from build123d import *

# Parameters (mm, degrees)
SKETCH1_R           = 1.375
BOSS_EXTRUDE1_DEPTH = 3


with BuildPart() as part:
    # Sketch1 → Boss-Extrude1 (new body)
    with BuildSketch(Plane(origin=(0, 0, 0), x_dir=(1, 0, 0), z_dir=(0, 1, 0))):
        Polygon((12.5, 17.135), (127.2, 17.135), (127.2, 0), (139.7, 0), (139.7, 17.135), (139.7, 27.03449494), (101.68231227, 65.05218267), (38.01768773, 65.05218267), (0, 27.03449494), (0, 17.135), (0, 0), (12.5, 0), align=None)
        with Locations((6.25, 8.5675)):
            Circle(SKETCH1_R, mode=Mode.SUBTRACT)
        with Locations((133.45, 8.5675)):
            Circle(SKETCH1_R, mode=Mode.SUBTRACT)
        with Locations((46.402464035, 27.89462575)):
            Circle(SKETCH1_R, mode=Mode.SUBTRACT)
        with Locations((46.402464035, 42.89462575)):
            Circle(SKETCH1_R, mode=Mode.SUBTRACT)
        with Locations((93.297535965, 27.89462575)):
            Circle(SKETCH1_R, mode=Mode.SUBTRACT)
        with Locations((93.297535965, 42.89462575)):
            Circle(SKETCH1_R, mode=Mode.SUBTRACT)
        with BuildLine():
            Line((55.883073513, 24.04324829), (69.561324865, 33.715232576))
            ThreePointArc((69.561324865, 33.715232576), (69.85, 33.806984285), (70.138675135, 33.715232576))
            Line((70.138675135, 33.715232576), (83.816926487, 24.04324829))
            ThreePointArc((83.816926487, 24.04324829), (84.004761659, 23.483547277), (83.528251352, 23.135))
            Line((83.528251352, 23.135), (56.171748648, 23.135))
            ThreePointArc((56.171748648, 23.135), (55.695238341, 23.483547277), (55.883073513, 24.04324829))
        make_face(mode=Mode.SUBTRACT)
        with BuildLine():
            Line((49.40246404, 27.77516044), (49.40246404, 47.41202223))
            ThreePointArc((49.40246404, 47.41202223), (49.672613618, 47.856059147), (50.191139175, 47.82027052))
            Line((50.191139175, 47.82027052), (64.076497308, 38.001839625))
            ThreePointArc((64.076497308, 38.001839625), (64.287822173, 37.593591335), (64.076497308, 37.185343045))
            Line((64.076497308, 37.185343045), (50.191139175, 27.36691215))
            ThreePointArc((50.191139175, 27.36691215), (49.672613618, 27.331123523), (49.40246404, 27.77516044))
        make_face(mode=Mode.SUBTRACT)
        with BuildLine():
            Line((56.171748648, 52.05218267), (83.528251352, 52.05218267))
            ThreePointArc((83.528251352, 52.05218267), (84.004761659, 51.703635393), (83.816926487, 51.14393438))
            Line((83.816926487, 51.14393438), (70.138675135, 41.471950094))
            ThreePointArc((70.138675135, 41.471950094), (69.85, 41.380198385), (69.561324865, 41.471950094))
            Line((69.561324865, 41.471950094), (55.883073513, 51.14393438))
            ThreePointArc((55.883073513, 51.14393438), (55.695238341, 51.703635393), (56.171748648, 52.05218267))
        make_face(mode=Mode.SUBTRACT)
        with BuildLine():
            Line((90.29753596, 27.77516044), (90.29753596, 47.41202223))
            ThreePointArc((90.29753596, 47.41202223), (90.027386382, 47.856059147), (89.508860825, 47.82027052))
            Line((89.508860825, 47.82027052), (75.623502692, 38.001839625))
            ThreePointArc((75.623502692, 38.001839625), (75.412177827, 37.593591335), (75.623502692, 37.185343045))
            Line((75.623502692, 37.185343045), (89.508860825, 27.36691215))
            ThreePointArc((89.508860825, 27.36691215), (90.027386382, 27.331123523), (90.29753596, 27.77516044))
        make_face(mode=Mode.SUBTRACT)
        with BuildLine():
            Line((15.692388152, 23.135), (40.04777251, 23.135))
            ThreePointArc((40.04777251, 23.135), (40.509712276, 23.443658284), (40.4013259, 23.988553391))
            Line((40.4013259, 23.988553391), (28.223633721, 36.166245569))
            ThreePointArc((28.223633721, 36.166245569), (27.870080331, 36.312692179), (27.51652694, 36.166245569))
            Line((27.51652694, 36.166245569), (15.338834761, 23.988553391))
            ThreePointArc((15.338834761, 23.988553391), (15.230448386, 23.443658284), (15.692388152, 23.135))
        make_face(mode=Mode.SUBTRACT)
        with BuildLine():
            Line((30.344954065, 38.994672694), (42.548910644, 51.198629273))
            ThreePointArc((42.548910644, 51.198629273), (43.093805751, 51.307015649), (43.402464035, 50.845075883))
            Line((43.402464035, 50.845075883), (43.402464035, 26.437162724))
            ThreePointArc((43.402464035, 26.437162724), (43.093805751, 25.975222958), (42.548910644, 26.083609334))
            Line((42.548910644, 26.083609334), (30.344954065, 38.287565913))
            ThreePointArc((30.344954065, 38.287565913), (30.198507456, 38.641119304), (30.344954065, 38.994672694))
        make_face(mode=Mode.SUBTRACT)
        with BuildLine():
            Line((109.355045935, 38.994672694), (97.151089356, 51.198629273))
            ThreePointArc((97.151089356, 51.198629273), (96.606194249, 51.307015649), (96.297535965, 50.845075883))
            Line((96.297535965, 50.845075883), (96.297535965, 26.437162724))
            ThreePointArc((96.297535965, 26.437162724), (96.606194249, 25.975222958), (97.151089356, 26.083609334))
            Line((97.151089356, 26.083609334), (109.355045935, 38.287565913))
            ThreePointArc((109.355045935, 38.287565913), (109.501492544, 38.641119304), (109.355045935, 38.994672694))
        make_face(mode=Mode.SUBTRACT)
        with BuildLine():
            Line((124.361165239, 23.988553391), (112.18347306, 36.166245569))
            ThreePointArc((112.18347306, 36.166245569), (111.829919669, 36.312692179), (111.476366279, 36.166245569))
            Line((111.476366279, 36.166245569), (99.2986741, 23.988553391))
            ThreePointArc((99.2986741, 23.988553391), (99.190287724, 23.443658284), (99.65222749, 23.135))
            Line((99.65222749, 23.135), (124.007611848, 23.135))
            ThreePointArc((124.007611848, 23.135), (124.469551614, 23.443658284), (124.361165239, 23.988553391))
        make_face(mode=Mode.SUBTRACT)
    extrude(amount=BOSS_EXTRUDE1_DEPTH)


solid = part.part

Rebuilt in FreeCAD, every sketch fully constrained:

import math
import FreeCAD as App
import Part
import Sketcher

V = App.Vector
Q = App.Units.Quantity

doc = App.newDocument("Part")
body = doc.addObject("PartDesign::Body", "Body")

sketch1 = doc.addObject("Sketcher::SketchObject", "Sketch")
body.addObject(sketch1)
sketch1.AttachmentSupport = (doc.XZ_Plane, [""])
sketch1.MapMode = "FlatFace"
sketch1.addGeometry(Part.LineSegment(V(12.5, -17.135, 0), V(127.2, -17.135, 0)), False)
sketch1.addGeometry(Part.LineSegment(V(127.2, -17.135, 0), V(127.2, 0, 0)), False)
sketch1.addGeometry(Part.LineSegment(V(127.2, 0, 0), V(139.7, 0, 0)), False)
sketch1.addGeometry(Part.LineSegment(V(139.7, 0, 0), V(139.7, -27.034495, 0)), False)
sketch1.addGeometry(Part.LineSegment(V(139.7, -27.034495, 0), V(101.682312, -65.052183, 0)), False)
sketch1.addGeometry(Part.LineSegment(V(101.682312, -65.052183, 0), V(38.017688, -65.052183, 0)), False)
sketch1.addGeometry(Part.LineSegment(V(38.017688, -65.052183, 0), V(0, -27.034495, 0)), False)
sketch1.addGeometry(Part.LineSegment(V(0, -27.034495, 0), V(0, 0, 0)), False)
sketch1.addGeometry(Part.LineSegment(V(0, 0, 0), V(12.5, 0, 0)), False)
sketch1.addGeometry(Part.LineSegment(V(12.5, 0, 0), V(12.5, -17.135, 0)), False)
sketch1.addGeometry(Part.Circle(V(6.25, -8.5675, 0), V(0, 0, 1), 1.375), False)
sketch1.addGeometry(Part.Circle(V(46.402464, -27.894626, 0), V(0, 0, 1), 1.375), False)
sketch1.addGeometry(Part.Circle(V(133.45, -8.5675, 0), V(0, 0, 1), 1.375), False)
sketch1.addGeometry(Part.ArcOfCircle(Part.Circle(V(56.171749, -23.635, 0), V(0, 0, 1), 0.5), math.radians(90), math.radians(234.73561)), False)
sketch1.addGeometry(Part.LineSegment(V(55.883074, -24.043248, 0), V(69.561325, -33.715233, 0)), False)
sketch1.addGeometry(Part.ArcOfCircle(Part.Circle(V(69.85, -33.306984, 0), V(0, 0, 1), 0.5), math.radians(-125.264389), math.radians(-54.735611)), False)
sketch1.addGeometry(Part.LineSegment(V(70.138675, -33.715233, 0), V(83.816926, -24.043248, 0)), False)
sketch1.addGeometry(Part.ArcOfCircle(Part.Circle(V(83.528251, -23.635, 0), V(0, 0, 1), 0.5), math.radians(-54.73561), math.radians(90)), False)
sketch1.addGeometry(Part.LineSegment(V(83.528251, -23.135, 0), V(56.171749, -23.135, 0)), False)
sketch1.addGeometry(Part.Circle(V(93.297536, -27.894626, 0), V(0, 0, 1), 1.375), False)
sketch1.addGeometry(Part.LineSegment(V(40.047773, -23.135, 0), V(15.692388, -23.135, 0)), False)
sketch1.addGeometry(Part.ArcOfCircle(Part.Circle(V(15.692388, -23.635, 0), V(0, 0, 1), 0.5), math.radians(90), math.radians(225)), False)
sketch1.addGeometry(Part.LineSegment(V(15.338835, -23.988553, 0), V(27.516527, -36.166246, 0)), False)
sketch1.addGeometry(Part.ArcOfCircle(Part.Circle(V(27.87008, -35.812692, 0), V(0, 0, 1), 0.5), math.radians(-135), math.radians(-45)), False)
sketch1.addGeometry(Part.LineSegment(V(28.223634, -36.166246, 0), V(40.401326, -23.988553, 0)), False)
sketch1.addGeometry(Part.ArcOfCircle(Part.Circle(V(40.047773, -23.635, 0), V(0, 0, 1), 0.5), math.radians(-45), math.radians(90)), False)
sketch1.addGeometry(Part.ArcOfCircle(Part.Circle(V(30.698507, -38.641119, 0), V(0, 0, 1), 0.5), math.radians(135), math.radians(225)), False)
sketch1.addGeometry(Part.LineSegment(V(30.344954, -38.994673, 0), V(42.548911, -51.198629, 0)), False)
sketch1.addGeometry(Part.ArcOfCircle(Part.Circle(V(42.902464, -50.845076, 0), V(0, 0, 1), 0.5), math.radians(-135), math.radians(0)), False)
sketch1.addGeometry(Part.LineSegment(V(43.402464, -50.845076, 0), V(43.402464, -26.437163, 0)), False)
sketch1.addGeometry(Part.ArcOfCircle(Part.Circle(V(42.902464, -26.437163, 0), V(0, 0, 1), 0.5), math.radians(0), math.radians(135)), False)
sketch1.addGeometry(Part.LineSegment(V(42.548911, -26.083609, 0), V(30.344954, -38.287566, 0)), False)
sketch1.addGeometry(Part.ArcOfCircle(Part.Circle(V(49.902464, -27.77516, 0), V(0, 0, 1), 0.5), math.radians(54.73561), math.radians(180)), False)
sketch1.addGeometry(Part.LineSegment(V(49.402464, -27.77516, 0), V(49.402464, -47.412022, 0)), False)
sketch1.addGeometry(Part.ArcOfCircle(Part.Circle(V(49.902464, -47.412022, 0), V(0, 0, 1), 0.5), math.radians(180), math.radians(305.26439)), False)
sketch1.addGeometry(Part.LineSegment(V(50.191139, -47.820271, 0), V(64.076497, -38.00184, 0)), False)
sketch1.addGeometry(Part.ArcOfCircle(Part.Circle(V(63.787822, -37.593591, 0), V(0, 0, 1), 0.5), math.radians(-54.73561), math.radians(54.73561)), False)
sketch1.addGeometry(Part.LineSegment(V(64.076497, -37.185343, 0), V(50.191139, -27.366912, 0)), False)
sketch1.addGeometry(Part.Circle(V(46.402464, -42.894626, 0), V(0, 0, 1), 1.375), False)
sketch1.addGeometry(Part.LineSegment(V(90.297536, -47.412022, 0), V(90.297536, -27.77516, 0)), False)
sketch1.addGeometry(Part.ArcOfCircle(Part.Circle(V(89.797536, -27.77516, 0), V(0, 0, 1), 0.5), math.radians(0), math.radians(125.26439)), False)
sketch1.addGeometry(Part.LineSegment(V(89.508861, -27.366912, 0), V(75.623503, -37.185343, 0)), False)
sketch1.addGeometry(Part.ArcOfCircle(Part.Circle(V(75.912178, -37.593591, 0), V(0, 0, 1), 0.5), math.radians(125.26439), math.radians(234.73561)), False)
sketch1.addGeometry(Part.LineSegment(V(75.623503, -38.00184, 0), V(89.508861, -47.820271, 0)), False)
sketch1.addGeometry(Part.ArcOfCircle(Part.Circle(V(89.797536, -47.412022, 0), V(0, 0, 1), 0.5), math.radians(-125.26439), math.radians(0)), False)
sketch1.addGeometry(Part.LineSegment(V(112.183473, -36.166246, 0), V(124.361165, -23.988553, 0)), False)
sketch1.addGeometry(Part.ArcOfCircle(Part.Circle(V(124.007612, -23.635, 0), V(0, 0, 1), 0.5), math.radians(-45), math.radians(90)), False)
sketch1.addGeometry(Part.LineSegment(V(124.007612, -23.135, 0), V(99.652227, -23.135, 0)), False)
sketch1.addGeometry(Part.ArcOfCircle(Part.Circle(V(99.652227, -23.635, 0), V(0, 0, 1), 0.5), math.radians(90), math.radians(225)), False)
sketch1.addGeometry(Part.LineSegment(V(99.298674, -23.988553, 0), V(111.476366, -36.166246, 0)), False)
sketch1.addGeometry(Part.ArcOfCircle(Part.Circle(V(111.82992, -35.812692, 0), V(0, 0, 1), 0.5), math.radians(-135), math.radians(-45)), False)
sketch1.addGeometry(Part.LineSegment(V(97.151089, -51.198629, 0), V(109.355046, -38.994673, 0)), False)
sketch1.addGeometry(Part.ArcOfCircle(Part.Circle(V(109.001493, -38.641119, 0), V(0, 0, 1), 0.5), math.radians(-45), math.radians(45)), False)
sketch1.addGeometry(Part.LineSegment(V(109.355046, -38.287566, 0), V(97.151089, -26.083609, 0)), False)
sketch1.addGeometry(Part.ArcOfCircle(Part.Circle(V(96.797536, -26.437163, 0), V(0, 0, 1), 0.5), math.radians(45), math.radians(180)), False)
sketch1.addGeometry(Part.LineSegment(V(96.297536, -26.437163, 0), V(96.297536, -50.845076, 0)), False)
sketch1.addGeometry(Part.ArcOfCircle(Part.Circle(V(96.797536, -50.845076, 0), V(0, 0, 1), 0.5), math.radians(180), math.radians(315)), False)
sketch1.addGeometry(Part.Circle(V(93.297536, -42.894626, 0), V(0, 0, 1), 1.375), False)
sketch1.addGeometry(Part.ArcOfCircle(Part.Circle(V(56.171749, -51.552183, 0), V(0, 0, 1), 0.5), math.radians(125.26439), math.radians(270)), False)
sketch1.addGeometry(Part.LineSegment(V(56.171749, -52.052183, 0), V(83.528251, -52.052183, 0)), False)
sketch1.addGeometry(Part.ArcOfCircle(Part.Circle(V(83.528251, -51.552183, 0), V(0, 0, 1), 0.5), math.radians(-90), math.radians(54.73561)), False)
sketch1.addGeometry(Part.LineSegment(V(83.816926, -51.143934, 0), V(70.138675, -41.47195, 0)), False)
sketch1.addGeometry(Part.ArcOfCircle(Part.Circle(V(69.85, -41.880198, 0), V(0, 0, 1), 0.5), math.radians(54.735611), math.radians(125.264389)), False)
sketch1.addGeometry(Part.LineSegment(V(69.561325, -41.47195, 0), V(55.883074, -51.143934, 0)), False)
sketch1.addConstraint(Sketcher.Constraint("Coincident", 0, 2, 1, 1))
sketch1.addConstraint(Sketcher.Constraint("Coincident", 1, 2, 2, 1))
sketch1.addConstraint(Sketcher.Constraint("Coincident", 2, 2, 3, 1))
sketch1.addConstraint(Sketcher.Constraint("Coincident", 3, 2, 4, 1))
sketch1.addConstraint(Sketcher.Constraint("Coincident", 4, 2, 5, 1))
sketch1.addConstraint(Sketcher.Constraint("Coincident", 5, 2, 6, 1))
sketch1.addConstraint(Sketcher.Constraint("Coincident", 6, 2, 7, 1))
sketch1.addConstraint(Sketcher.Constraint("Coincident", 7, 2, 8, 1))
sketch1.addConstraint(Sketcher.Constraint("Coincident", 8, 2, 9, 1))
sketch1.addConstraint(Sketcher.Constraint("Coincident", 9, 2, 0, 1))
sketch1.addConstraint(Sketcher.Constraint("Tangent", 13, 2, 14, 1))
sketch1.addConstraint(Sketcher.Constraint("Tangent", 14, 2, 15, 1))
sketch1.addConstraint(Sketcher.Constraint("Tangent", 15, 2, 16, 1))
sketch1.addConstraint(Sketcher.Constraint("Tangent", 16, 2, 17, 1))
sketch1.addConstraint(Sketcher.Constraint("Tangent", 17, 2, 18, 1))
sketch1.addConstraint(Sketcher.Constraint("Tangent", 18, 2, 13, 1))
sketch1.addConstraint(Sketcher.Constraint("Tangent", 20, 2, 21, 1))
sketch1.addConstraint(Sketcher.Constraint("Tangent", 21, 2, 22, 1))
sketch1.addConstraint(Sketcher.Constraint("Tangent", 22, 2, 23, 1))
sketch1.addConstraint(Sketcher.Constraint("Tangent", 23, 2, 24, 1))
sketch1.addConstraint(Sketcher.Constraint("Tangent", 24, 2, 25, 1))
sketch1.addConstraint(Sketcher.Constraint("Tangent", 25, 2, 20, 1))
sketch1.addConstraint(Sketcher.Constraint("Tangent", 26, 2, 27, 1))
sketch1.addConstraint(Sketcher.Constraint("Tangent", 27, 2, 28, 1))
sketch1.addConstraint(Sketcher.Constraint("Tangent", 28, 2, 29, 1))
sketch1.addConstraint(Sketcher.Constraint("Tangent", 29, 2, 30, 1))
sketch1.addConstraint(Sketcher.Constraint("Tangent", 30, 2, 31, 1))
sketch1.addConstraint(Sketcher.Constraint("Tangent", 31, 2, 26, 1))
sketch1.addConstraint(Sketcher.Constraint("Tangent", 32, 2, 33, 1))
sketch1.addConstraint(Sketcher.Constraint("Tangent", 33, 2, 34, 1))
sketch1.addConstraint(Sketcher.Constraint("Tangent", 34, 2, 35, 1))
sketch1.addConstraint(Sketcher.Constraint("Tangent", 35, 2, 36, 1))
sketch1.addConstraint(Sketcher.Constraint("Tangent", 36, 2, 37, 1))
sketch1.addConstraint(Sketcher.Constraint("Tangent", 37, 2, 32, 1))
sketch1.addConstraint(Sketcher.Constraint("Tangent", 39, 2, 40, 1))
sketch1.addConstraint(Sketcher.Constraint("Tangent", 40, 2, 41, 1))
sketch1.addConstraint(Sketcher.Constraint("Tangent", 41, 2, 42, 1))
sketch1.addConstraint(Sketcher.Constraint("Tangent", 42, 2, 43, 1))
sketch1.addConstraint(Sketcher.Constraint("Tangent", 43, 2, 44, 1))
sketch1.addConstraint(Sketcher.Constraint("Tangent", 44, 2, 39, 1))
sketch1.addConstraint(Sketcher.Constraint("Tangent", 45, 2, 46, 1))
sketch1.addConstraint(Sketcher.Constraint("Tangent", 46, 2, 47, 1))
sketch1.addConstraint(Sketcher.Constraint("Tangent", 47, 2, 48, 1))
sketch1.addConstraint(Sketcher.Constraint("Tangent", 48, 2, 49, 1))
sketch1.addConstraint(Sketcher.Constraint("Tangent", 49, 2, 50, 1))
sketch1.addConstraint(Sketcher.Constraint("Tangent", 50, 2, 45, 1))
sketch1.addConstraint(Sketcher.Constraint("Tangent", 51, 2, 52, 1))
sketch1.addConstraint(Sketcher.Constraint("Tangent", 52, 2, 53, 1))
sketch1.addConstraint(Sketcher.Constraint("Tangent", 53, 2, 54, 1))
sketch1.addConstraint(Sketcher.Constraint("Tangent", 54, 2, 55, 1))
sketch1.addConstraint(Sketcher.Constraint("Tangent", 55, 2, 56, 1))
sketch1.addConstraint(Sketcher.Constraint("Tangent", 56, 2, 51, 1))
sketch1.addConstraint(Sketcher.Constraint("Tangent", 58, 2, 59, 1))
sketch1.addConstraint(Sketcher.Constraint("Tangent", 59, 2, 60, 1))
sketch1.addConstraint(Sketcher.Constraint("Tangent", 60, 2, 61, 1))
sketch1.addConstraint(Sketcher.Constraint("Tangent", 61, 2, 62, 1))
sketch1.addConstraint(Sketcher.Constraint("Tangent", 62, 2, 63, 1))
sketch1.addConstraint(Sketcher.Constraint("Tangent", 63, 2, 58, 1))
sketch1.addConstraint(Sketcher.Constraint("Horizontal", 0))
sketch1.addConstraint(Sketcher.Constraint("Vertical", 1))
sketch1.addConstraint(Sketcher.Constraint("Horizontal", 2))
sketch1.addConstraint(Sketcher.Constraint("Vertical", 3))
sketch1.addConstraint(Sketcher.Constraint("Horizontal", 5))
sketch1.addConstraint(Sketcher.Constraint("Vertical", 7))
sketch1.addConstraint(Sketcher.Constraint("Horizontal", 8))
sketch1.addConstraint(Sketcher.Constraint("Vertical", 9))
sketch1.addConstraint(Sketcher.Constraint("Horizontal", 18))
sketch1.addConstraint(Sketcher.Constraint("Horizontal", 20))
sketch1.addConstraint(Sketcher.Constraint("Vertical", 29))
sketch1.addConstraint(Sketcher.Constraint("Vertical", 33))
sketch1.addConstraint(Sketcher.Constraint("Vertical", 39))
sketch1.addConstraint(Sketcher.Constraint("Horizontal", 47))
sketch1.addConstraint(Sketcher.Constraint("Vertical", 55))
sketch1.addConstraint(Sketcher.Constraint("Horizontal", 59))
sketch1.addConstraint(Sketcher.Constraint("Coincident", 7, 2, -1, 1))
sketch1.addConstraint(Sketcher.Constraint("Equal", 10, 11))
sketch1.addConstraint(Sketcher.Constraint("Equal", 11, 12))
sketch1.addConstraint(Sketcher.Constraint("Equal", 13, 15))
sketch1.addConstraint(Sketcher.Constraint("Equal", 15, 17))
sketch1.addConstraint(Sketcher.Constraint("Equal", 12, 19))
sketch1.addConstraint(Sketcher.Constraint("Equal", 17, 21))
sketch1.addConstraint(Sketcher.Constraint("Equal", 21, 23))
sketch1.addConstraint(Sketcher.Constraint("Equal", 23, 25))
sketch1.addConstraint(Sketcher.Constraint("Equal", 25, 26))
sketch1.addConstraint(Sketcher.Constraint("Equal", 26, 28))
sketch1.addConstraint(Sketcher.Constraint("Equal", 28, 30))
sketch1.addConstraint(Sketcher.Constraint("Equal", 30, 32))
sketch1.addConstraint(Sketcher.Constraint("Equal", 32, 34))
sketch1.addConstraint(Sketcher.Constraint("Equal", 34, 36))
sketch1.addConstraint(Sketcher.Constraint("Equal", 19, 38))
sketch1.addConstraint(Sketcher.Constraint("Equal", 36, 40))
sketch1.addConstraint(Sketcher.Constraint("Equal", 40, 42))
sketch1.addConstraint(Sketcher.Constraint("Equal", 42, 44))
sketch1.addConstraint(Sketcher.Constraint("Equal", 44, 46))
sketch1.addConstraint(Sketcher.Constraint("Equal", 46, 48))
sketch1.addConstraint(Sketcher.Constraint("Equal", 48, 50))
sketch1.addConstraint(Sketcher.Constraint("Equal", 50, 52))
sketch1.addConstraint(Sketcher.Constraint("Equal", 52, 54))
sketch1.addConstraint(Sketcher.Constraint("Equal", 54, 56))
sketch1.addConstraint(Sketcher.Constraint("Equal", 38, 57))
sketch1.addConstraint(Sketcher.Constraint("Equal", 56, 58))
sketch1.addConstraint(Sketcher.Constraint("Equal", 58, 60))
sketch1.addConstraint(Sketcher.Constraint("Equal", 60, 62))
sketch1.addConstraint(Sketcher.Constraint("PointOnObject", 1, 2, -1))
sketch1.addConstraint(Sketcher.Constraint("Perpendicular", 4, 6))
sketch1.addConstraint(Sketcher.Constraint("Parallel", 6, 22))
sketch1.addConstraint(Sketcher.Constraint("Perpendicular", 22, 24))
sketch1.addConstraint(Sketcher.Constraint("Perpendicular", 24, 27))
sketch1.addConstraint(Sketcher.Constraint("Perpendicular", 27, 31))
sketch1.addConstraint(Sketcher.Constraint("Parallel", 16, 35))
sketch1.addConstraint(Sketcher.Constraint("Parallel", 14, 37))
sketch1.addConstraint(Sketcher.Constraint("Parallel", 35, 41))
sketch1.addConstraint(Sketcher.Constraint("Parallel", 37, 43))
sketch1.addConstraint(Sketcher.Constraint("Parallel", 31, 45))
sketch1.addConstraint(Sketcher.Constraint("Perpendicular", 45, 49))
sketch1.addConstraint(Sketcher.Constraint("Perpendicular", 49, 51))
sketch1.addConstraint(Sketcher.Constraint("Perpendicular", 51, 53))
sketch1.addConstraint(Sketcher.Constraint("Parallel", 43, 61))
sketch1.addConstraint(Sketcher.Constraint("Parallel", 41, 63))
sketch1.addConstraint(Sketcher.Constraint("Horizontal", 10, 3, 12, 3))
sketch1.addConstraint(Sketcher.Constraint("Horizontal", 11, 3, 19, 3))
sketch1.addConstraint(Sketcher.Constraint("Horizontal", 17, 3, 21, 3))
sketch1.addConstraint(Sketcher.Constraint("Horizontal", 32, 3, 40, 3))
sketch1.addConstraint(Sketcher.Constraint("Horizontal", 36, 3, 42, 3))
sketch1.addConstraint(Sketcher.Constraint("Horizontal", 34, 3, 44, 3))
sketch1.addConstraint(Sketcher.Constraint("Horizontal", 25, 3, 46, 3))
sketch1.addConstraint(Sketcher.Constraint("Horizontal", 23, 3, 50, 3))
sketch1.addConstraint(Sketcher.Constraint("Horizontal", 26, 3, 52, 3))
sketch1.addConstraint(Sketcher.Constraint("Horizontal", 30, 3, 54, 3))
sketch1.addConstraint(Sketcher.Constraint("Horizontal", 28, 3, 56, 3))
sketch1.addConstraint(Sketcher.Constraint("Horizontal", 38, 3, 57, 3))
sketch1.addConstraint(Sketcher.Constraint("Horizontal", 3, 2, 6, 2))
sketch1.addConstraint(Sketcher.Constraint("Vertical", 11, 3, 38, 3))
sketch1.addConstraint(Sketcher.Constraint("Vertical", 19, 3, 57, 3))
sketch1.addConstraint(Sketcher.Constraint("Vertical", 13, 3, 58, 3))
sketch1.addConstraint(Sketcher.Constraint("Vertical", 17, 3, 60, 3))
sketch1.addConstraint(Sketcher.Constraint("Equal", 2, 8))
sketch1.addConstraint(Sketcher.Constraint("Radius", 13, Q("0.5 mm")))
sketch1.addConstraint(Sketcher.Constraint("Diameter", 10, Q("2.75 mm")))
sketch1.addConstraint(Sketcher.Constraint("DistanceX", 0, 1, 0, 2, Q("114.7 mm")))
sketch1.addConstraint(Sketcher.Constraint("DistanceX", 2, 1, 2, 2, Q("12.5 mm")))
sketch1.addConstraint(Sketcher.Constraint("DistanceY", 1, 1, 1, 2, Q("17.135 mm")))
sketch1.addConstraint(Sketcher.Constraint("DistanceX", -1, 1, 10, 3, Q("6.25 mm")))
sketch1.addConstraint(Sketcher.Constraint("DistanceX", -1, 1, 12, 3, Q("133.45 mm")))
sketch1.addConstraint(Sketcher.Constraint("DistanceX", -1, 1, 15, 3, Q("69.85 mm")))
sketch1.addConstraint(Sketcher.Constraint("Distance", 27, Q("17.259001 mm")))
sketch1.addConstraint(Sketcher.Constraint("DistanceY", 13, 3, -1, 1, Q("23.635 mm")))
sketch1.addConstraint(Sketcher.Constraint("DistanceY", 33, 2, 33, 1, Q("19.636862 mm")))
sketch1.addConstraint(Sketcher.Constraint("DistanceY", 10, 3, -1, 1, Q("8.5675 mm")))
sketch1.addConstraint(Sketcher.Constraint("DistanceY", 62, 3, -1, 1, Q("41.880198 mm")))
sketch1.addConstraint(Sketcher.Constraint("Distance", 4, Q("53.76513 mm")))
sketch1.addConstraint(Sketcher.Constraint("Distance", 14, Q("16.752368 mm")))
sketch1.addConstraint(Sketcher.Constraint("Distance", 35, Q("17.006021 mm")))
sketch1.addConstraint(Sketcher.Constraint("DistanceX", 20, 2, 20, 1, Q("24.355384 mm")))
sketch1.addConstraint(Sketcher.Constraint("DistanceY", 3, 2, 3, 1, Q("27.034495 mm")))
sketch1.addConstraint(Sketcher.Constraint("DistanceX", -1, 1, 21, 3, Q("15.692388 mm")))
sketch1.addConstraint(Sketcher.Constraint("DistanceY", 26, 3, -1, 1, Q("38.641119 mm")))
sketch1.addConstraint(Sketcher.Constraint("DistanceY", 32, 3, -1, 1, Q("27.77516 mm")))
sketch1.addConstraint(Sketcher.Constraint("DistanceX", -1, 1, 46, 3, Q("124.007612 mm")))
sketch1.addConstraint(Sketcher.Constraint("DistanceX", -1, 1, 27, 2, Q("42.548911 mm")))
sketch1.addConstraint(Sketcher.Constraint("DistanceX", -1, 1, 34, 2, Q("50.191139 mm")))
sketch1.addConstraint(Sketcher.Constraint("DistanceX", -1, 1, 40, 2, Q("89.508861 mm")))
sketch1.addConstraint(Sketcher.Constraint("DistanceX", -1, 1, 53, 2, Q("97.151089 mm")))
sketch1.addConstraint(Sketcher.Constraint("DistanceX", -1, 1, 11, 3, Q("46.402464 mm")))
sketch1.addConstraint(Sketcher.Constraint("DistanceY", 11, 3, -1, 1, Q("27.894626 mm")))
sketch1.addConstraint(Sketcher.Constraint("DistanceX", -1, 1, 19, 3, Q("93.297536 mm")))
sketch1.addConstraint(Sketcher.Constraint("DistanceY", 38, 3, -1, 1, Q("42.894626 mm")))
pad1 = doc.addObject("PartDesign::Pad", "Pad")
body.addObject(pad1)
pad1.Profile = sketch1
pad1.Length = 3
pad1.Reversed = True

doc.recompute()
